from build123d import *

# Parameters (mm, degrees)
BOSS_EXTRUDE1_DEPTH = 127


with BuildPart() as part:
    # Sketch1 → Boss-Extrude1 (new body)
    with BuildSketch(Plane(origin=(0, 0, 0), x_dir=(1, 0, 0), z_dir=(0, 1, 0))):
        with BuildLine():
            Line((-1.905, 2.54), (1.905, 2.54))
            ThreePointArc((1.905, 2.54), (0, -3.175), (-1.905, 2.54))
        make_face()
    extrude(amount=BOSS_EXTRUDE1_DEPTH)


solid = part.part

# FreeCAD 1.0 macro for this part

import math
import FreeCAD as App
import Part
import Sketcher
Q = App.Units.Quantity

doc = App.newDocument("Part")
body = doc.addObject("PartDesign::Body", "Body")

sketch1 = doc.addObject("Sketcher::SketchObject", "Sketch")
body.addObject(sketch1)
sketch1.AttachmentSupport = (doc.XZ_Plane, [""])
sketch1.MapMode = "FlatFace"
sketch1.addGeometry([
    Part.LineSegment(App.Vector(1.9, -2.5, 0), App.Vector(-1.9, -2.5, 0)),
    Part.ArcOfCircle(Part.Circle(App.Vector(0, 0, 0), App.Vector(0, 0, 1), 3.2), math.radians(-53), math.radians(233)),
], False)
sketch1.addConstraint([
    Sketcher.Constraint("Coincident", 0, 1, 1, 1),
    Sketcher.Constraint("Coincident", 1, 2, 0, 2),
    Sketcher.Constraint("Horizontal", 0),
    Sketcher.Constraint("Coincident", 1, 3, -1, 1),
    Sketcher.Constraint("Radius", 1, Q("0.125 in")),
    Sketcher.Constraint("DistanceX", 0, 2, 0, 1, Q("0.15 in")),
])
pad1 = doc.addObject("PartDesign::Pad", "Pad")
body.addObject(pad1)
pad1.Profile = sketch1
pad1.Length = Q("5 in")
pad1.Reversed = True

doc.recompute()
